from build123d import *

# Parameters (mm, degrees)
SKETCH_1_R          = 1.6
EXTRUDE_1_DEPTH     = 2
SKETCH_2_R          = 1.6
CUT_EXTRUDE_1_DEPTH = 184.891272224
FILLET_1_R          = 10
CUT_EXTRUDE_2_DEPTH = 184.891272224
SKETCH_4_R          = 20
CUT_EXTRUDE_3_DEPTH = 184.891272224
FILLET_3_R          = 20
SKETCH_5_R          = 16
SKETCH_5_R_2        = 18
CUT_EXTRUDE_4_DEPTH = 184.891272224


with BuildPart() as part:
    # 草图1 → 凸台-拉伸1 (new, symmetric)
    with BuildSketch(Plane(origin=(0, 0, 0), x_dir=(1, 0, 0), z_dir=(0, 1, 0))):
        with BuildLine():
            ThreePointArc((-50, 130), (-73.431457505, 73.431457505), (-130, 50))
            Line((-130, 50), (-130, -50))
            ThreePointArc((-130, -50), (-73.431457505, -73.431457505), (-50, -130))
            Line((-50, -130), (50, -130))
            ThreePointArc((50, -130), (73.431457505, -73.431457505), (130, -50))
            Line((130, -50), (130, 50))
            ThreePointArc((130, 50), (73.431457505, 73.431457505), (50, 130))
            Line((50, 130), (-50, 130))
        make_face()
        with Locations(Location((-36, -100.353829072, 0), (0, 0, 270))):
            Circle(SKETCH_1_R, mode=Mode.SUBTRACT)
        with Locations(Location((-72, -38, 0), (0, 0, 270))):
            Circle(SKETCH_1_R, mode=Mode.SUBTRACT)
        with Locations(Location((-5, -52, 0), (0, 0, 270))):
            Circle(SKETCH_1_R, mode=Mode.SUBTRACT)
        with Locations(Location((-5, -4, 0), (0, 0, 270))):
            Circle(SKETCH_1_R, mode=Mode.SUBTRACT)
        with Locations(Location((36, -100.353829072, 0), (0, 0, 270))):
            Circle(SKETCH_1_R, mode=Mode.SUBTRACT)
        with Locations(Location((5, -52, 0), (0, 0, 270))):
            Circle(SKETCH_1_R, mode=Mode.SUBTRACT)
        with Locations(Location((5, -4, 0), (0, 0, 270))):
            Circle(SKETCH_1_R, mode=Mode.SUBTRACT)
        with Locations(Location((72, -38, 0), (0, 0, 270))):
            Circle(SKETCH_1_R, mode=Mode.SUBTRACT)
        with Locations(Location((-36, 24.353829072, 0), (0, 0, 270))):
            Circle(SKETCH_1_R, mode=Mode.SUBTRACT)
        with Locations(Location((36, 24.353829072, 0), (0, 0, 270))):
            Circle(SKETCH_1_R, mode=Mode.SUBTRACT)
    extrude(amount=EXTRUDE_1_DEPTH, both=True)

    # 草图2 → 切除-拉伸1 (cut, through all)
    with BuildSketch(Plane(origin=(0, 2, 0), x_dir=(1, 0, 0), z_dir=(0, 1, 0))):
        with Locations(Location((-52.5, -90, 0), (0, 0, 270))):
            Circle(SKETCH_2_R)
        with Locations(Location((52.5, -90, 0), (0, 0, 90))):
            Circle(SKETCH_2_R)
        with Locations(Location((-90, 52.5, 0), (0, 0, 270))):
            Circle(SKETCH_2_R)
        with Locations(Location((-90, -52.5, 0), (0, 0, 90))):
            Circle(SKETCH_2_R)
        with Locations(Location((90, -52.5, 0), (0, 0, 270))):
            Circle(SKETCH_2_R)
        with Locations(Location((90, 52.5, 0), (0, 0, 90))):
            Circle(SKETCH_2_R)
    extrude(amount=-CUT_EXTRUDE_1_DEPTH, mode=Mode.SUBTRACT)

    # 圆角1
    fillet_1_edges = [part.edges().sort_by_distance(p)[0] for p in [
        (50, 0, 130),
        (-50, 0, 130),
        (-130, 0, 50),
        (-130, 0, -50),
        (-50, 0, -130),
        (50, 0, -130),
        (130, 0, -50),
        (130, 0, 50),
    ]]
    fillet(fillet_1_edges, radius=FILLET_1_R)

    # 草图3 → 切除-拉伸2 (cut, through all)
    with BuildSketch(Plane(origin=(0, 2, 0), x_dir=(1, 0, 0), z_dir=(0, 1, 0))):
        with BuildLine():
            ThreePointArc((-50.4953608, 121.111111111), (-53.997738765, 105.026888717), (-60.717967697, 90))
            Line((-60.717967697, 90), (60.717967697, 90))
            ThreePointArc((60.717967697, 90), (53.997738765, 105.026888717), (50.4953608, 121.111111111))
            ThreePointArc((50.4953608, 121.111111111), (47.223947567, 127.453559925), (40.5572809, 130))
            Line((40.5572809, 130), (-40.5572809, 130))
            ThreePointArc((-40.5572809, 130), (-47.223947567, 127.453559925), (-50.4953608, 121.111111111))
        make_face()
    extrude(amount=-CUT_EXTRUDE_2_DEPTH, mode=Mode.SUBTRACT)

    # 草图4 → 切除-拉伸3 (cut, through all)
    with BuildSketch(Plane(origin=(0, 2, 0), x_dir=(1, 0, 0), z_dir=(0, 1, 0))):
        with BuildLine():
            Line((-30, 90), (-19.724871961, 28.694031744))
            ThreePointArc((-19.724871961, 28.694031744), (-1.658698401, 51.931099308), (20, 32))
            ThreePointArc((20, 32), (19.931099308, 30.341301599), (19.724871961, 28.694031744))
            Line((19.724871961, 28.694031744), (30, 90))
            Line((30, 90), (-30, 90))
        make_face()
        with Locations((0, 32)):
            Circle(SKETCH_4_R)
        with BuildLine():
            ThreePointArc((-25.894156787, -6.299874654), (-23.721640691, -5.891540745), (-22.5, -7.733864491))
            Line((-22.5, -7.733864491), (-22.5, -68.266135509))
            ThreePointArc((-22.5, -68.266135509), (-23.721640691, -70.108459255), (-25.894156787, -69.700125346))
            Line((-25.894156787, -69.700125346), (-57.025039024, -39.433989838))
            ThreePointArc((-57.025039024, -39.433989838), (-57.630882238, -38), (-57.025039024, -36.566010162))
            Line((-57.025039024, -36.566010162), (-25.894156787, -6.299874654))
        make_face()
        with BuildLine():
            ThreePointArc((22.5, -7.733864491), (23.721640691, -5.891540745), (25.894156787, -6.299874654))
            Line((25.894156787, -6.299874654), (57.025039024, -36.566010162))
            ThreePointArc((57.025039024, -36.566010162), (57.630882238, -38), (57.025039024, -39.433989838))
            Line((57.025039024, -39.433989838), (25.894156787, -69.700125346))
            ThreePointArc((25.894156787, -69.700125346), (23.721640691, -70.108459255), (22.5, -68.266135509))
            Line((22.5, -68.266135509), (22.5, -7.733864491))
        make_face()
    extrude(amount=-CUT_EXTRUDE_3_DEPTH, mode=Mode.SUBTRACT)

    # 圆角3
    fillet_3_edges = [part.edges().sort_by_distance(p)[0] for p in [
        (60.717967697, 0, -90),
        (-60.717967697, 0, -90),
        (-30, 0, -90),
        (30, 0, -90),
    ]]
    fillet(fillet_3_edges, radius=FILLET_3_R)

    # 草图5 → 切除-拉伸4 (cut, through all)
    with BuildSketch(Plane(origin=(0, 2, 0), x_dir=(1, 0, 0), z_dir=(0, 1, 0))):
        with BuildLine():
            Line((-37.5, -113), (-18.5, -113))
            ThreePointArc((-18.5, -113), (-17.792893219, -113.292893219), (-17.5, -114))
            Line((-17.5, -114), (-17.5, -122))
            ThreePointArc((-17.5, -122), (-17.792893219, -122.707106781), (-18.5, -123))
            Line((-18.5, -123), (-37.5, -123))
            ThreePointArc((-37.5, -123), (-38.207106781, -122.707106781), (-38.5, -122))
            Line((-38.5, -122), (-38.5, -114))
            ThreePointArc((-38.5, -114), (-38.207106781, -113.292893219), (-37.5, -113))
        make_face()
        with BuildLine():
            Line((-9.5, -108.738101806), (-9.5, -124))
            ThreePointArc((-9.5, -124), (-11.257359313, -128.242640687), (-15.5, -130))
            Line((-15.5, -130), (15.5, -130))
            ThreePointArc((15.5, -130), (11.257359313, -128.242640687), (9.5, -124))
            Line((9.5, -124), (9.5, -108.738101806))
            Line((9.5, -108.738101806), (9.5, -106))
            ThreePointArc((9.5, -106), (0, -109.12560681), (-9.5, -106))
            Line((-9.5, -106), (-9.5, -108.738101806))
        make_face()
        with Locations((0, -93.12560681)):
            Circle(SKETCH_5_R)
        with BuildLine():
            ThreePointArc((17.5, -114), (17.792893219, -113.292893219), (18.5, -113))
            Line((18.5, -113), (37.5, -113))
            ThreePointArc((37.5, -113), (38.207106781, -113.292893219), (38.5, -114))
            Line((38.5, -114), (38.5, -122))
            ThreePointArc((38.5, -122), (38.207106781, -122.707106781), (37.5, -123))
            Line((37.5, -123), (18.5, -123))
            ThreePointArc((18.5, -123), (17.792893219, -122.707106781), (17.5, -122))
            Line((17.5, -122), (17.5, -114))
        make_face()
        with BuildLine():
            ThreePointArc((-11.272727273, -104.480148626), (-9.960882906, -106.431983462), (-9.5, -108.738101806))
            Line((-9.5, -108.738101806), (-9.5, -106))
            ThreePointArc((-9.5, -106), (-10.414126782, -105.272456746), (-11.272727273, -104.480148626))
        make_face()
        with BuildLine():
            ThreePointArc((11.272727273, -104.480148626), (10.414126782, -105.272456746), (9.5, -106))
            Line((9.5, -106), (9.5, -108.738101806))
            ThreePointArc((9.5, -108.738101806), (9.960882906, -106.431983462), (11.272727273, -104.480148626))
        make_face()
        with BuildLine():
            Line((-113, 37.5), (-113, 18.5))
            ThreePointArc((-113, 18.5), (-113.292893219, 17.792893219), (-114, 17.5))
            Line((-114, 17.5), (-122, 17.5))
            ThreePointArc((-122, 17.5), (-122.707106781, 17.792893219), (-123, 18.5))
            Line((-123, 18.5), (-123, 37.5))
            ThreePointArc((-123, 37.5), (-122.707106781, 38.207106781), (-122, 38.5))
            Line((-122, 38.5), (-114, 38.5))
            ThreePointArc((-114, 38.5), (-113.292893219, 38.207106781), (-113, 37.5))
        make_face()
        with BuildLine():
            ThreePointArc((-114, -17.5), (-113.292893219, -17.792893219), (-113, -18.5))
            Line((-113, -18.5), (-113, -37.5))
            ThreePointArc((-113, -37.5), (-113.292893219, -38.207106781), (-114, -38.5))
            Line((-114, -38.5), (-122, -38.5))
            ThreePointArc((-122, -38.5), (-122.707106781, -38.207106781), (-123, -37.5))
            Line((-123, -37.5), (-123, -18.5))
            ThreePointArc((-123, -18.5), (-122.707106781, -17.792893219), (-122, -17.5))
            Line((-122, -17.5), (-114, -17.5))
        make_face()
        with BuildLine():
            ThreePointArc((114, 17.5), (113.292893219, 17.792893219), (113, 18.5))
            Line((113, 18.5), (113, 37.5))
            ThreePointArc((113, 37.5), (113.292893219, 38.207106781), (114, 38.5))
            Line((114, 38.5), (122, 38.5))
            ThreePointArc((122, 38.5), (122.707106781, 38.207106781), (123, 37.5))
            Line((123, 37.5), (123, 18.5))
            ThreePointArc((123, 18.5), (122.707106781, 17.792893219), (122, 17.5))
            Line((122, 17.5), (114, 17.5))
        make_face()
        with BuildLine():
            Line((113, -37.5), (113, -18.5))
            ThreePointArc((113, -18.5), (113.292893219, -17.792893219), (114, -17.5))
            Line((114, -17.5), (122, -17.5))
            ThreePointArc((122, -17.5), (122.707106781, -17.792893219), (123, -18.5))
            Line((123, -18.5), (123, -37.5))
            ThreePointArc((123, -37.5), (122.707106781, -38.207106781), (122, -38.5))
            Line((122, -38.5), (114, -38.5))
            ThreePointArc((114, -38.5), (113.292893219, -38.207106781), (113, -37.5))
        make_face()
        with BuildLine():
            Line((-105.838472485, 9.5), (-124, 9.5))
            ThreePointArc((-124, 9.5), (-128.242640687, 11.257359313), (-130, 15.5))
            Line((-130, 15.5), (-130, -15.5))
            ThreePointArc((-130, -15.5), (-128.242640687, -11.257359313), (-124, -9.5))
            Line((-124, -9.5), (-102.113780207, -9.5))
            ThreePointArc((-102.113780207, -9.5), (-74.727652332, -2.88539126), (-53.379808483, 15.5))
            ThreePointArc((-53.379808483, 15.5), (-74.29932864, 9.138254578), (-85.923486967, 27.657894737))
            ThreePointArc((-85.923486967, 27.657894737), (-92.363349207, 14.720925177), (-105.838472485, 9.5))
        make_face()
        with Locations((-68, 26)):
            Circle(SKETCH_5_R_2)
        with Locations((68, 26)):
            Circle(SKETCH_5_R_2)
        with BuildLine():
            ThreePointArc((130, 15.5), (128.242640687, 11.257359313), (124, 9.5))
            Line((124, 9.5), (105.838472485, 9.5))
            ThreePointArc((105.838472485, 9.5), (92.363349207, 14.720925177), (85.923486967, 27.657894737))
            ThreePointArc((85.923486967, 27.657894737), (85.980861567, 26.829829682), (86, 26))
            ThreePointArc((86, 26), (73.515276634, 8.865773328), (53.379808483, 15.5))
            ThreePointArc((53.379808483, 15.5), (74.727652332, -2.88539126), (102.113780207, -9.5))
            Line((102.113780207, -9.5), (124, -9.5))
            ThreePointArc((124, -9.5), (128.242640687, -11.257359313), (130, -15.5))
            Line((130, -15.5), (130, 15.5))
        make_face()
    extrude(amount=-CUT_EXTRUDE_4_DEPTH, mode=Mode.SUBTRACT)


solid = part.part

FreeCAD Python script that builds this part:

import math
import FreeCAD as App
import Part
import Sketcher
from FreeCAD import Vector


def edges_at(feature, points):
    """Names of the edges that pass closest to the given points."""
    edges = feature.Shape.Edges
    near = lambda p: min(range(len(edges)), key=lambda i: edges[i].distToShape(Part.Vertex(*p))[0])
    return sorted({f"Edge{near(p) + 1}" for p in points})

doc = App.newDocument("Part")
body = doc.addObject("PartDesign::Body", "Body")

sketch1 = body.newObject("Sketcher::SketchObject", "Sketch")
sketch1.AttachmentSupport = (doc.getObject("XZ_Plane"), [""])
sketch1.MapMode = "FlatFace"
sketch1.addGeometry([
    Part.ArcOfCircle(Part.Circle(Vector(-130, -130, 0), Vector(0, 0, 1), 80), math.radians(0), math.radians(90)),
    Part.LineSegment(Vector(-130, -50, 0), Vector(-130, 50, 0)),
    Part.ArcOfCircle(Part.Circle(Vector(-130, 130, 0), Vector(0, 0, 1), 80), math.radians(-90), math.radians(0)),
    Part.LineSegment(Vector(-50, 130, 0), Vector(50, 130, 0)),
    Part.ArcOfCircle(Part.Circle(Vector(130, 130, 0), Vector(0, 0, 1), 80), math.radians(180), math.radians(270)),
    Part.LineSegment(Vector(130, 50, 0), Vector(130, -50, 0)),
    Part.ArcOfCircle(Part.Circle(Vector(130, -130, 0), Vector(0, 0, 1), 80), math.radians(90), math.radians(180)),
    Part.LineSegment(Vector(50, -130, 0), Vector(-50, -130, 0)),
    Part.Circle(Vector(-36, 100.4, 0), Vector(0, 0, 1), 1.6),
    Part.Circle(Vector(-72, 38, 0), Vector(0, 0, 1), 1.6),
    Part.Circle(Vector(-5, 52, 0), Vector(0, 0, 1), 1.6),
    Part.Circle(Vector(36, 100.4, 0), Vector(0, 0, 1), 1.6),
    Part.Circle(Vector(5, 52, 0), Vector(0, 0, 1), 1.6),
    Part.Circle(Vector(72, 38, 0), Vector(0, 0, 1), 1.6),
    Part.Circle(Vector(-5, 4, 0), Vector(0, 0, 1), 1.6),
    Part.Circle(Vector(-36, -24.4, 0), Vector(0, 0, 1), 1.6),
    Part.Circle(Vector(5, 4, 0), Vector(0, 0, 1), 1.6),
    Part.Circle(Vector(36, -24.4, 0), Vector(0, 0, 1), 1.6),
], False)
sketch1.addConstraint([
    Sketcher.Constraint("Coincident", 0, 2, 1, 1),
    Sketcher.Constraint("Coincident", 1, 2, 2, 1),
    Sketcher.Constraint("Coincident", 2, 2, 3, 1),
    Sketcher.Constraint("Coincident", 3, 2, 4, 1),
    Sketcher.Constraint("Coincident", 4, 2, 5, 1),
    Sketcher.Constraint("Coincident", 5, 2, 6, 1),
    Sketcher.Constraint("Coincident", 6, 2, 7, 1),
    Sketcher.Constraint("Coincident", 7, 2, 0, 1),
    Sketcher.Constraint("Vertical", 1),
    Sketcher.Constraint("Horizontal", 3),
    Sketcher.Constraint("Vertical", 5),
    Sketcher.Constraint("Horizontal", 7),
    Sketcher.Constraint("Equal", 0, 2),
    Sketcher.Constraint("Equal", 2, 4),
    Sketcher.Constraint("Equal", 4, 6),
    Sketcher.Constraint("Equal", 8, 9),
    Sketcher.Constraint("Equal", 9, 10),
    Sketcher.Constraint("Equal", 10, 11),
    Sketcher.Constraint("Equal", 11, 12),
    Sketcher.Constraint("Equal", 12, 13),
    Sketcher.Constraint("Equal", 13, 14),
    Sketcher.Constraint("Equal", 14, 15),
    Sketcher.Constraint("Equal", 15, 16),
    Sketcher.Constraint("Equal", 16, 17),
    Sketcher.Constraint("Symmetric", 0, 3, 4, 3, -1, 1),
    Sketcher.Constraint("Symmetric", 2, 3, 6, 3, -1, 1),
    Sketcher.Constraint("Symmetric", 2, 3, 4, 3, -2),
    Sketcher.Constraint("Symmetric", 8, 3, 11, 3, -2),
    Sketcher.Constraint("Symmetric", 10, 3, 12, 3, -2),
    Sketcher.Constraint("Symmetric", 9, 3, 13, 3, -2),
    Sketcher.Constraint("Symmetric", 14, 3, 16, 3, -2),
    Sketcher.Constraint("Symmetric", 15, 3, 17, 3, -2),
    Sketcher.Constraint("Horizontal", 4, 3, 2, 2),
    Sketcher.Constraint("Horizontal", 0, 3, 6, 2),
    Sketcher.Constraint("Vertical", 10, 3, 14, 3),
    Sketcher.Constraint("Vertical", 8, 3, 15, 3),
    Sketcher.Constraint("Vertical", 2, 3, 0, 2),
    Sketcher.Constraint("Vertical", 6, 3, 4, 2),
    Sketcher.Constraint("Equal", 7, 1),
    Sketcher.Constraint("Radius", 0, 80.0),
    Sketcher.Constraint("Diameter", 8, 3.2),
    Sketcher.Constraint("DistanceX", 3, 1, 3, 2, 100.0),
    Sketcher.Constraint("DistanceX", 8, 3, -1, 1, 36.0),
    Sketcher.Constraint("DistanceX", 9, 3, -1, 1, 72.0),
    Sketcher.Constraint("DistanceY", -1, 1, 9, 3, 38.0),
    Sketcher.Constraint("DistanceX", 10, 3, -1, 1, 5.0),
    Sketcher.Constraint("DistanceY", -1, 1, 10, 3, 52.0),
    Sketcher.Constraint("DistanceY", -1, 1, 14, 3, 4.0),
    Sketcher.Constraint("DistanceY", -1, 1, 8, 3, 100.353829),
    Sketcher.Constraint("DistanceY", 15, 3, -1, 1, 24.353829),
])
pad1 = body.newObject("PartDesign::Pad", "Pad")
pad1.Profile = sketch1
pad1.Length = 4
pad1.Midplane = True

sketch2 = body.newObject("Sketcher::SketchObject", "Sketch001")
sketch2.AttachmentSupport = (doc.getObject("XZ_Plane"), [""])
sketch2.MapMode = "FlatFace"
sketch2.AttachmentOffset = App.Placement(Vector(0, 0, -2), App.Rotation())
sketch2.addGeometry([
    Part.Circle(Vector(-52.5, 90, 0), Vector(0, 0, 1), 1.6),
    Part.Circle(Vector(52.5, 90, 0), Vector(0, 0, 1), 1.6),
    Part.Circle(Vector(-90, -52.5, 0), Vector(0, 0, 1), 1.6),
    Part.Circle(Vector(-90, 52.5, 0), Vector(0, 0, 1), 1.6),
    Part.Circle(Vector(90, 52.5, 0), Vector(0, 0, 1), 1.6),
    Part.Circle(Vector(90, -52.5, 0), Vector(0, 0, 1), 1.6),
], False)
sketch2.addConstraint([
    Sketcher.Constraint("Equal", 0, 1),
    Sketcher.Constraint("Equal", 1, 2),
    Sketcher.Constraint("Equal", 2, 3),
    Sketcher.Constraint("Equal", 3, 4),
    Sketcher.Constraint("Equal", 4, 5),
    Sketcher.Constraint("Symmetric", 2, 3, 4, 3, -1, 1),
    Sketcher.Constraint("Symmetric", 3, 3, 5, 3, -1, 1),
    Sketcher.Constraint("Symmetric", 0, 3, 1, 3, -2),
    Sketcher.Constraint("Symmetric", 3, 3, 4, 3, -2),
    Sketcher.Constraint("Diameter", 0, 3.2),
    Sketcher.Constraint("DistanceY", -1, 1, 0, 3, 90.0),
    Sketcher.Constraint("DistanceX", 2, 3, -1, 1, 90.0),
    Sketcher.Constraint("DistanceX", 0, 3, 1, 3, 105.0),
    Sketcher.Constraint("DistanceY", 2, 3, 3, 3, 105.0),
])
pocket1 = body.newObject("PartDesign::Pocket", "Pocket")
pocket1.Profile = sketch2
pocket1.Type = "ThroughAll"
pocket1.Reversed = True
doc.recompute()

fillet = body.newObject("PartDesign::Fillet", "Fillet")
fillet.Base = (pocket1, edges_at(pocket1, [
    (50, 0, 130),
    (-50, 0, 130),
    (-130, 0, 50),
    (-130, 0, -50),
    (-50, 0, -130),
    (50, 0, -130),
    (130, 0, -50),
    (130, 0, 50),
]))
fillet.Radius = 10

sketch3 = body.newObject("Sketcher::SketchObject", "Sketch002")
sketch3.AttachmentSupport = (doc.getObject("XZ_Plane"), [""])
sketch3.MapMode = "FlatFace"
sketch3.AttachmentOffset = App.Placement(Vector(0, 0, -2), App.Rotation())
sketch3.addGeometry([
    Part.ArcOfCircle(Part.Circle(Vector(-130, -130, 0), Vector(0, 0, 1), 80), math.radians(6), math.radians(30)),
    Part.LineSegment(Vector(-61, -90, 0), Vector(61, -90, 0)),
    Part.ArcOfCircle(Part.Circle(Vector(130, -130, 0), Vector(0, 0, 1), 80), math.radians(150), math.radians(174)),
    Part.ArcOfCircle(Part.Circle(Vector(41, -120, 0), Vector(0, 0, 1), 10), math.radians(-90), math.radians(-6)),
    Part.LineSegment(Vector(41, -130, 0), Vector(-41, -130, 0)),
    Part.ArcOfCircle(Part.Circle(Vector(-41, -120, 0), Vector(0, 0, 1), 10), math.radians(-174), math.radians(-90)),
], False)
sketch3.addConstraint([
    Sketcher.Constraint("Coincident", 0, 2, 1, 1),
    Sketcher.Constraint("Coincident", 1, 2, 2, 1),
    Sketcher.Constraint("Tangent", 2, 2, 3, 2),
    Sketcher.Constraint("Tangent", 3, 1, 4, 1),
    Sketcher.Constraint("Tangent", 4, 2, 5, 2),
    Sketcher.Constraint("Tangent", 5, 1, 0, 1),
    Sketcher.Constraint("Horizontal", 1),
    Sketcher.Constraint("Horizontal", 4),
    Sketcher.Constraint("Equal", 0, 2),
    Sketcher.Constraint("Equal", 3, 5),
    Sketcher.Constraint("Symmetric", 0, 3, 2, 3, -2),
    Sketcher.Constraint("Horizontal", 2, 3, 3, 1),
    Sketcher.Constraint("Radius", 0, 80.0),
    Sketcher.Constraint("Radius", 3, 10.0),
    Sketcher.Constraint("DistanceX", 0, 3, -1, 1, 130.0),
    Sketcher.Constraint("DistanceY", 0, 3, -1, 1, 130.0),
    Sketcher.Constraint("DistanceY", 0, 2, -1, 1, 90.0),
])
pocket2 = body.newObject("PartDesign::Pocket", "Pocket001")
pocket2.Profile = sketch3
pocket2.Type = "ThroughAll"
pocket2.Reversed = True

sketch4 = body.newObject("Sketcher::SketchObject", "Sketch003")
sketch4.AttachmentSupport = (doc.getObject("XZ_Plane"), [""])
sketch4.MapMode = "FlatFace"
sketch4.AttachmentOffset = App.Placement(Vector(0, 0, -2), App.Rotation())
sketch4.addGeometry([
    Part.LineSegment(Vector(-30, -90, 0), Vector(-19.7, -28.7, 0)),
    Part.ArcOfCircle(Part.Circle(Vector(0, -32, 0), Vector(0, 0, 1), 20), math.radians(10), math.radians(170)),
    Part.LineSegment(Vector(19.7, -28.7, 0), Vector(30, -90, 0)),
    Part.LineSegment(Vector(30, -90, 0), Vector(-30, -90, 0)),
    Part.ArcOfCircle(Part.Circle(Vector(-24.5, 7.7, 0), Vector(0, 0, 1), 2), math.radians(-134), math.radians(0)),
    Part.LineSegment(Vector(-25.9, 6.3, 0), Vector(-57, 36.6, 0)),
    Part.ArcOfCircle(Part.Circle(Vector(-55.6, 38, 0), Vector(0, 0, 1), 2), math.radians(134), math.radians(226)),
    Part.LineSegment(Vector(-57, 39.4, 0), Vector(-25.9, 69.7, 0)),
    Part.ArcOfCircle(Part.Circle(Vector(-24.5, 68.3, 0), Vector(0, 0, 1), 2), math.radians(0), math.radians(134)),
    Part.LineSegment(Vector(-22.5, 68.3, 0), Vector(-22.5, 7.7, 0)),
    Part.ArcOfCircle(Part.Circle(Vector(24.5, 7.7, 0), Vector(0, 0, 1), 2), math.radians(180), math.radians(314)),
    Part.LineSegment(Vector(22.5, 7.7, 0), Vector(22.5, 68.3, 0)),
    Part.ArcOfCircle(Part.Circle(Vector(24.5, 68.3, 0), Vector(0, 0, 1), 2), math.radians(46), math.radians(180)),
    Part.LineSegment(Vector(25.9, 69.7, 0), Vector(57, 39.4, 0)),
    Part.ArcOfCircle(Part.Circle(Vector(55.6, 38, 0), Vector(0, 0, 1), 2), math.radians(-46), math.radians(46)),
    Part.LineSegment(Vector(57, 36.6, 0), Vector(25.9, 6.3, 0)),
], False)
sketch4.addConstraint([
    Sketcher.Constraint("Tangent", 0, 2, 1, 2),
    Sketcher.Constraint("Tangent", 1, 1, 2, 1),
    Sketcher.Constraint("Coincident", 2, 2, 3, 1),
    Sketcher.Constraint("Coincident", 3, 2, 0, 1),
    Sketcher.Constraint("Tangent", 4, 1, 5, 1),
    Sketcher.Constraint("Tangent", 5, 2, 6, 2),
    Sketcher.Constraint("Tangent", 6, 1, 7, 1),
    Sketcher.Constraint("Tangent", 7, 2, 8, 2),
    Sketcher.Constraint("Tangent", 8, 1, 9, 1),
    Sketcher.Constraint("Tangent", 9, 2, 4, 2),
    Sketcher.Constraint("Tangent", 10, 1, 11, 1),
    Sketcher.Constraint("Tangent", 11, 2, 12, 2),
    Sketcher.Constraint("Tangent", 12, 1, 13, 1),
    Sketcher.Constraint("Tangent", 13, 2, 14, 2),
    Sketcher.Constraint("Tangent", 14, 1, 15, 1),
    Sketcher.Constraint("Tangent", 15, 2, 10, 2),
    Sketcher.Constraint("Horizontal", 3),
    Sketcher.Constraint("Vertical", 9),
    Sketcher.Constraint("Vertical", 11),
    Sketcher.Constraint("Equal", 4, 6),
    Sketcher.Constraint("Equal", 6, 8),
    Sketcher.Constraint("Equal", 8, 10),
    Sketcher.Constraint("Equal", 10, 12),
    Sketcher.Constraint("Equal", 12, 14),
    Sketcher.Constraint("Symmetric", 4, 3, 10, 3, -2),
    Sketcher.Constraint("Symmetric", 6, 3, 14, 3, -2),
    Sketcher.Constraint("Symmetric", 0, 2, 1, 1, -2),
    Sketcher.Constraint("Parallel", 5, 13),
    Sketcher.Constraint("Parallel", 7, 15),
    Sketcher.Constraint("Radius", 1, 20.0),
    Sketcher.Constraint("Radius", 4, 2.0),
    Sketcher.Constraint("DistanceX", 3, 2, 3, 1, 60.0),
    Sketcher.Constraint("DistanceY", 1, 3, -1, 1, 32.0),
    Sketcher.Constraint("DistanceY", -1, 1, 6, 3, 38.0),
    Sketcher.Constraint("DistanceY", 2, 2, -1, 1, 90.0),
    Sketcher.Constraint("DistanceX", 4, 3, 10, 3, 49.0),
    Sketcher.Constraint("DistanceY", 9, 2, 9, 1, 60.532271),
    Sketcher.Constraint("DistanceX", 5, 2, -1, 1, 57.025039),
])
pocket3 = body.newObject("PartDesign::Pocket", "Pocket002")
pocket3.Profile = sketch4
pocket3.Type = "ThroughAll"
pocket3.Reversed = True
doc.recompute()

fillet2 = body.newObject("PartDesign::Fillet", "Fillet001")
fillet2.Base = (pocket3, edges_at(pocket3, [
    (60.718, 0, -90),
    (-60.718, 0, -90),
    (-30, 0, -90),
    (30, 0, -90),
]))
fillet2.Radius = 20

sketch5 = body.newObject("Sketcher::SketchObject", "Sketch004")
sketch5.AttachmentSupport = (doc.getObject("XZ_Plane"), [""])
sketch5.MapMode = "FlatFace"
sketch5.AttachmentOffset = App.Placement(Vector(0, 0, -2), App.Rotation())
sketch5.addGeometry([
    Part.LineSegment(Vector(-18.5, 113, 0), Vector(-37.5, 113, 0)),
    Part.ArcOfCircle(Part.Circle(Vector(-37.5, 114, 0), Vector(0, 0, 1), 1), math.radians(-180), math.radians(-90)),
    Part.LineSegment(Vector(-38.5, 114, 0), Vector(-38.5, 122, 0)),
    Part.ArcOfCircle(Part.Circle(Vector(-37.5, 122, 0), Vector(0, 0, 1), 1), math.radians(90), math.radians(180)),
    Part.LineSegment(Vector(-37.5, 123, 0), Vector(-18.5, 123, 0)),
    Part.ArcOfCircle(Part.Circle(Vector(-18.5, 122, 0), Vector(0, 0, 1), 1), math.radians(0), math.radians(90)),
    Part.LineSegment(Vector(-17.5, 122, 0), Vector(-17.5, 114, 0)),
    Part.ArcOfCircle(Part.Circle(Vector(-18.5, 114, 0), Vector(0, 0, 1), 1), math.radians(-90), math.radians(0)),
    Part.ArcOfCircle(Part.Circle(Vector(-15.5, 124, 0), Vector(0, 0, 1), 6), math.radians(0), math.radians(90)),
    Part.LineSegment(Vector(-15.5, 130, 0), Vector(15.5, 130, 0)),
    Part.ArcOfCircle(Part.Circle(Vector(15.5, 124, 0), Vector(0, 0, 1), 6), math.radians(90), math.radians(180)),
    Part.LineSegment(Vector(9.5, 124, 0), Vector(9.5, 108.7, 0)),
    Part.ArcOfCircle(Part.Circle(Vector(15.5, 108.7, 0), Vector(0, 0, 1), 6), math.radians(180), math.radians(225)),
    Part.ArcOfCircle(Part.Circle(Vector(0, 93.1, 0), Vector(0, 0, 1), 16), math.radians(135), math.radians(405)),
    Part.ArcOfCircle(Part.Circle(Vector(-15.5, 108.7, 0), Vector(0, 0, 1), 6), math.radians(-45), math.radians(0)),
    Part.LineSegment(Vector(-9.5, 108.7, 0), Vector(-9.5, 124, 0)),
    Part.ArcOfCircle(Part.Circle(Vector(18.5, 114, 0), Vector(0, 0, 1), 1), math.radians(-180), math.radians(-90)),
    Part.LineSegment(Vector(17.5, 114, 0), Vector(17.5, 122, 0)),
    Part.ArcOfCircle(Part.Circle(Vector(18.5, 122, 0), Vector(0, 0, 1), 1), math.radians(90), math.radians(180)),
    Part.LineSegment(Vector(18.5, 123, 0), Vector(37.5, 123, 0)),
    Part.ArcOfCircle(Part.Circle(Vector(37.5, 122, 0), Vector(0, 0, 1), 1), math.radians(0), math.radians(90)),
    Part.LineSegment(Vector(38.5, 122, 0), Vector(38.5, 114, 0)),
    Part.ArcOfCircle(Part.Circle(Vector(37.5, 114, 0), Vector(0, 0, 1), 1), math.radians(-90), math.radians(0)),
    Part.LineSegment(Vector(37.5, 113, 0), Vector(18.5, 113, 0)),
    Part.LineSegment(Vector(-113, -18.5, 0), Vector(-113, -37.5, 0)),
    Part.ArcOfCircle(Part.Circle(Vector(-114, -37.5, 0), Vector(0, 0, 1), 1), math.radians(-90), math.radians(0)),
    Part.LineSegment(Vector(-114, -38.5, 0), Vector(-122, -38.5, 0)),
    Part.ArcOfCircle(Part.Circle(Vector(-122, -37.5, 0), Vector(0, 0, 1), 1), math.radians(-180), math.radians(-90)),
    Part.LineSegment(Vector(-123, -37.5, 0), Vector(-123, -18.5, 0)),
    Part.ArcOfCircle(Part.Circle(Vector(-122, -18.5, 0), Vector(0, 0, 1), 1), math.radians(90), math.radians(180)),
    Part.LineSegment(Vector(-122, -17.5, 0), Vector(-114, -17.5, 0)),
    Part.ArcOfCircle(Part.Circle(Vector(-114, -18.5, 0), Vector(0, 0, 1), 1), math.radians(0), math.radians(90)),
    Part.ArcOfCircle(Part.Circle(Vector(-114, 18.5, 0), Vector(0, 0, 1), 1), math.radians(-90), math.radians(0)),
    Part.LineSegment(Vector(-114, 17.5, 0), Vector(-122, 17.5, 0)),
    Part.ArcOfCircle(Part.Circle(Vector(-122, 18.5, 0), Vector(0, 0, 1), 1), math.radians(-180), math.radians(-90)),
    Part.LineSegment(Vector(-123, 18.5, 0), Vector(-123, 37.5, 0)),
    Part.ArcOfCircle(Part.Circle(Vector(-122, 37.5, 0), Vector(0, 0, 1), 1), math.radians(90), math.radians(180)),
    Part.LineSegment(Vector(-122, 38.5, 0), Vector(-114, 38.5, 0)),
    Part.ArcOfCircle(Part.Circle(Vector(-114, 37.5, 0), Vector(0, 0, 1), 1), math.radians(0), math.radians(90)),
    Part.LineSegment(Vector(-113, 37.5, 0), Vector(-113, 18.5, 0)),
    Part.ArcOfCircle(Part.Circle(Vector(114, -18.5, 0), Vector(0, 0, 1), 1), math.radians(90), math.radians(180)),
    Part.LineSegment(Vector(114, -17.5, 0), Vector(122, -17.5, 0)),
    Part.ArcOfCircle(Part.Circle(Vector(122, -18.5, 0), Vector(0, 0, 1), 1), math.radians(0), math.radians(90)),
    Part.LineSegment(Vector(123, -18.5, 0), Vector(123, -37.5, 0)),
    Part.ArcOfCircle(Part.Circle(Vector(122, -37.5, 0), Vector(0, 0, 1), 1), math.radians(-90), math.radians(0)),
    Part.LineSegment(Vector(122, -38.5, 0), Vector(114, -38.5, 0)),
    Part.ArcOfCircle(Part.Circle(Vector(114, -37.5, 0), Vector(0, 0, 1), 1), math.radians(-180), math.radians(-90)),
    Part.LineSegment(Vector(113, -37.5, 0), Vector(113, -18.5, 0)),
    Part.LineSegment(Vector(113, 18.5, 0), Vector(113, 37.5, 0)),
    Part.ArcOfCircle(Part.Circle(Vector(114, 37.5, 0), Vector(0, 0, 1), 1), math.radians(90), math.radians(180)),
    Part.LineSegment(Vector(114, 38.5, 0), Vector(122, 38.5, 0)),
    Part.ArcOfCircle(Part.Circle(Vector(122, 37.5, 0), Vector(0, 0, 1), 1), math.radians(0), math.radians(90)),
    Part.LineSegment(Vector(123, 37.5, 0), Vector(123, 18.5, 0)),
    Part.ArcOfCircle(Part.Circle(Vector(122, 18.5, 0), Vector(0, 0, 1), 1), math.radians(-90), math.radians(0)),
    Part.LineSegment(Vector(122, 17.5, 0), Vector(114, 17.5, 0)),
    Part.ArcOfCircle(Part.Circle(Vector(114, 18.5, 0), Vector(0, 0, 1), 1), math.radians(-180), math.radians(-90)),
    Part.LineSegment(Vector(-105.8, -9.5, 0), Vector(-124, -9.5, 0)),
    Part.ArcOfCircle(Part.Circle(Vector(-124, -15.5, 0), Vector(0, 0, 1), 6), math.radians(90), math.radians(180)),
    Part.LineSegment(Vector(-130, -15.5, 0), Vector(-130, 15.5, 0)),
    Part.ArcOfCircle(Part.Circle(Vector(-124, 15.5, 0), Vector(0, 0, 1), 6), math.radians(180), math.radians(270)),
    Part.LineSegment(Vector(-124, 9.5, 0), Vector(-102.1, 9.5, 0)),
    Part.ArcOfCircle(Part.Circle(Vector(-102.1, -50.5, 0), Vector(0, 0, 1), 60), math.radians(36), math.radians(90)),
    Part.ArcOfCircle(Part.Circle(Vector(-68, -26, 0), Vector(0, 0, 1), 18), math.radians(-175), math.radians(36)),
    Part.ArcOfCircle(Part.Circle(Vector(-105.8, -29.5, 0), Vector(0, 0, 1), 20), math.radians(5), math.radians(90)),
    Part.ArcOfCircle(Part.Circle(Vector(68, -26, 0), Vector(0, 0, 1), 18), math.radians(144), math.radians(355)),
    Part.ArcOfCircle(Part.Circle(Vector(102.1, -50.5, 0), Vector(0, 0, 1), 60), math.radians(90), math.radians(144)),
    Part.LineSegment(Vector(102.1, 9.5, 0), Vector(124, 9.5, 0)),
    Part.ArcOfCircle(Part.Circle(Vector(124, 15.5, 0), Vector(0, 0, 1), 6), math.radians(-90), math.radians(0)),
    Part.LineSegment(Vector(130, 15.5, 0), Vector(130, -15.5, 0)),
    Part.ArcOfCircle(Part.Circle(Vector(124, -15.5, 0), Vector(0, 0, 1), 6), math.radians(0), math.radians(90)),
    Part.LineSegment(Vector(124, -9.5, 0), Vector(105.8, -9.5, 0)),
    Part.ArcOfCircle(Part.Circle(Vector(105.8, -29.5, 0), Vector(0, 0, 1), 20), math.radians(90), math.radians(175)),
], False)
sketch5.addConstraint([
    Sketcher.Constraint("Tangent", 0, 2, 1, 2),
    Sketcher.Constraint("Tangent", 1, 1, 2, 1),
    Sketcher.Constraint("Tangent", 2, 2, 3, 2),
    Sketcher.Constraint("Tangent", 3, 1, 4, 1),
    Sketcher.Constraint("Tangent", 4, 2, 5, 2),
    Sketcher.Constraint("Tangent", 5, 1, 6, 1),
    Sketcher.Constraint("Tangent", 6, 2, 7, 2),
    Sketcher.Constraint("Tangent", 7, 1, 0, 1),
    Sketcher.Constraint("Tangent", 8, 2, 9, 1),
    Sketcher.Constraint("Tangent", 9, 2, 10, 1),
    Sketcher.Constraint("Tangent", 10, 2, 11, 1),
    Sketcher.Constraint("Tangent", 11, 2, 12, 1),
    Sketcher.Constraint("Tangent", 12, 2, 13, 2),
    Sketcher.Constraint("Tangent", 13, 1, 14, 1),
    Sketcher.Constraint("Tangent", 14, 2, 15, 1),
    Sketcher.Constraint("Tangent", 15, 2, 8, 1),
    Sketcher.Constraint("Tangent", 16, 1, 17, 1),
    Sketcher.Constraint("Tangent", 17, 2, 18, 2),
    Sketcher.Constraint("Tangent", 18, 1, 19, 1),
    Sketcher.Constraint("Tangent", 19, 2, 20, 2),
    Sketcher.Constraint("Tangent", 20, 1, 21, 1),
    Sketcher.Constraint("Tangent", 21, 2, 22, 2),
    Sketcher.Constraint("Tangent", 22, 1, 23, 1),
    Sketcher.Constraint("Tangent", 23, 2, 16, 2),
    Sketcher.Constraint("Tangent", 24, 2, 25, 2),
    Sketcher.Constraint("Tangent", 25, 1, 26, 1),
    Sketcher.Constraint("Tangent", 26, 2, 27, 2),
    Sketcher.Constraint("Tangent", 27, 1, 28, 1),
    Sketcher.Constraint("Tangent", 28, 2, 29, 2),
    Sketcher.Constraint("Tangent", 29, 1, 30, 1),
    Sketcher.Constraint("Tangent", 30, 2, 31, 2),
    Sketcher.Constraint("Tangent", 31, 1, 24, 1),
    Sketcher.Constraint("Tangent", 32, 1, 33, 1),
    Sketcher.Constraint("Tangent", 33, 2, 34, 2),
    Sketcher.Constraint("Tangent", 34, 1, 35, 1),
    Sketcher.Constraint("Tangent", 35, 2, 36, 2),
    Sketcher.Constraint("Tangent", 36, 1, 37, 1),
    Sketcher.Constraint("Tangent", 37, 2, 38, 2),
    Sketcher.Constraint("Tangent", 38, 1, 39, 1),
    Sketcher.Constraint("Tangent", 39, 2, 32, 2),
    Sketcher.Constraint("Tangent", 40, 1, 41, 1),
    Sketcher.Constraint("Tangent", 41, 2, 42, 2),
    Sketcher.Constraint("Tangent", 42, 1, 43, 1),
    Sketcher.Constraint("Tangent", 43, 2, 44, 2),
    Sketcher.Constraint("Tangent", 44, 1, 45, 1),
    Sketcher.Constraint("Tangent", 45, 2, 46, 2),
    Sketcher.Constraint("Tangent", 46, 1, 47, 1),
    Sketcher.Constraint("Tangent", 47, 2, 40, 2),
    Sketcher.Constraint("Tangent", 48, 2, 49, 2),
    Sketcher.Constraint("Tangent", 49, 1, 50, 1),
    Sketcher.Constraint("Tangent", 50, 2, 51, 2),
    Sketcher.Constraint("Tangent", 51, 1, 52, 1),
    Sketcher.Constraint("Tangent", 52, 2, 53, 2),
    Sketcher.Constraint("Tangent", 53, 1, 54, 1),
    Sketcher.Constraint("Tangent", 54, 2, 55, 2),
    Sketcher.Constraint("Tangent", 55, 1, 48, 1),
    Sketcher.Constraint("Tangent", 56, 2, 57, 1),
    Sketcher.Constraint("Tangent", 57, 2, 58, 1),
    Sketcher.Constraint("Tangent", 58, 2, 59, 1),
    Sketcher.Constraint("Tangent", 59, 2, 60, 1),
    Sketcher.Constraint("Tangent", 60, 2, 61, 2),
    Sketcher.Constraint("Tangent", 61, 1, 62, 2),
    Sketcher.Constraint("Tangent", 62, 1, 63, 1),
    Sketcher.Constraint("Tangent", 63, 2, 56, 1),
    Sketcher.Constraint("Tangent", 64, 1, 65, 2),
    Sketcher.Constraint("Tangent", 65, 1, 66, 1),
    Sketcher.Constraint("Tangent", 66, 2, 67, 1),
    Sketcher.Constraint("Tangent", 67, 2, 68, 1),
    Sketcher.Constraint("Tangent", 68, 2, 69, 1),
    Sketcher.Constraint("Tangent", 69, 2, 70, 1),
    Sketcher.Constraint("Tangent", 70, 2, 71, 1),
    Sketcher.Constraint("Tangent", 71, 2, 64, 2),
    Sketcher.Constraint("Horizontal", 0),
    Sketcher.Constraint("Vertical", 2),
    Sketcher.Constraint("Horizontal", 4),
    Sketcher.Constraint("Vertical", 6),
    Sketcher.Constraint("Horizontal", 9),
    Sketcher.Constraint("Vertical", 11),
    Sketcher.Constraint("Vertical", 15),
    Sketcher.Constraint("Vertical", 17),
    Sketcher.Constraint("Horizontal", 19),
    Sketcher.Constraint("Vertical", 21),
    Sketcher.Constraint("Horizontal", 23),
    Sketcher.Constraint("Vertical", 24),
    Sketcher.Constraint("Horizontal", 26),
    Sketcher.Constraint("Vertical", 28),
    Sketcher.Constraint("Horizontal", 30),
    Sketcher.Constraint("Horizontal", 33),
    Sketcher.Constraint("Vertical", 35),
    Sketcher.Constraint("Horizontal", 37),
    Sketcher.Constraint("Vertical", 39),
    Sketcher.Constraint("Horizontal", 41),
    Sketcher.Constraint("Vertical", 43),
    Sketcher.Constraint("Horizontal", 45),
    Sketcher.Constraint("Vertical", 47),
    Sketcher.Constraint("Vertical", 48),
    Sketcher.Constraint("Horizontal", 50),
    Sketcher.Constraint("Vertical", 52),
    Sketcher.Constraint("Horizontal", 54),
    Sketcher.Constraint("Horizontal", 56),
    Sketcher.Constraint("Vertical", 58),
    Sketcher.Constraint("Horizontal", 60),
    Sketcher.Constraint("Horizontal", 66),
    Sketcher.Constraint("Vertical", 68),
    Sketcher.Constraint("Horizontal", 70),
    Sketcher.Constraint("Equal", 1, 3),
    Sketcher.Constraint("Equal", 3, 5),
    Sketcher.Constraint("Equal", 5, 7),
    Sketcher.Constraint("Equal", 8, 10),
    Sketcher.Constraint("Equal", 10, 12),
    Sketcher.Constraint("Equal", 12, 14),
    Sketcher.Constraint("Equal", 7, 16),
    Sketcher.Constraint("Equal", 16, 18),
    Sketcher.Constraint("Equal", 18, 20),
    Sketcher.Constraint("Equal", 20, 22),
    Sketcher.Constraint("Equal", 22, 25),
    Sketcher.Constraint("Equal", 25, 27),
    Sketcher.Constraint("Equal", 27, 29),
    Sketcher.Constraint("Equal", 29, 31),
    Sketcher.Constraint("Equal", 31, 32),
    Sketcher.Constraint("Equal", 32, 34),
    Sketcher.Constraint("Equal", 34, 36),
    Sketcher.Constraint("Equal", 36, 38),
    Sketcher.Constraint("Equal", 38, 40),
    Sketcher.Constraint("Equal", 40, 42),
    Sketcher.Constraint("Equal", 42, 44),
    Sketcher.Constraint("Equal", 44, 46),
    Sketcher.Constraint("Equal", 46, 49),
    Sketcher.Constraint("Equal", 49, 51),
    Sketcher.Constraint("Equal", 51, 53),
    Sketcher.Constraint("Equal", 53, 55),
    Sketcher.Constraint("Equal", 14, 57),
    Sketcher.Constraint("Equal", 57, 59),
    Sketcher.Constraint("Equal", 62, 64),
    Sketcher.Constraint("Equal", 61, 65),
    Sketcher.Constraint("Equal", 59, 67),
    Sketcher.Constraint("Equal", 67, 69),
    Sketcher.Constraint("Equal", 63, 71),
    Sketcher.Constraint("Symmetric", 32, 3, 40, 3, -1, 1),
    Sketcher.Constraint("Symmetric", 36, 3, 44, 3, -1, 1),
    Sketcher.Constraint("Symmetric", 25, 3, 49, 3, -1, 1),
    Sketcher.Constraint("Symmetric", 29, 3, 53, 3, -1, 1),
    Sketcher.Constraint("Symmetric", 57, 3, 67, 3, -1, 1),
    Sketcher.Constraint("Symmetric", 12, 3, 14, 3, -2),
    Sketcher.Constraint("Symmetric", 7, 3, 16, 3, -2),
    Sketcher.Constraint("Symmetric", 3, 3, 20, 3, -2),
    Sketcher.Constraint("Symmetric", 31, 3, 40, 3, -2),
    Sketcher.Constraint("Symmetric", 27, 3, 44, 3, -2),
    Sketcher.Constraint("Symmetric", 62, 3, 64, 3, -2),
    Sketcher.Constraint("Horizontal", 61, 3, 65, 3),
    Sketcher.Constraint("Horizontal", 57, 3, 69, 3),
    Sketcher.Constraint("Horizontal", 57, 2, 61, 1),
    Sketcher.Constraint("Equal", 54, 2),
    Sketcher.Constraint("Equal", 23, 24),
    Sketcher.Constraint("Equal", 9, 58),
    Sketcher.Constraint("Radius", 1, 1.0),
    Sketcher.Constraint("Radius", 8, 6.0),
    Sketcher.Constraint("Radius", 13, 16.0),
    Sketcher.Constraint("Radius", 61, 60.0),
    Sketcher.Constraint("Radius", 62, 18.0),
    Sketcher.Constraint("Radius", 63, 20.0),
    Sketcher.Constraint("DistanceX", 0, 2, 0, 1, 19.0),
    Sketcher.Constraint("DistanceX", 9, 1, 9, 2, 31.0),
    Sketcher.Constraint("DistanceX", 26, 2, 26, 1, 8.0),
    Sketcher.Constraint("DistanceY", -1, 1, 1, 3, 114.0),
    Sketcher.Constraint("DistanceY", -1, 1, 8, 3, 124.0),
    Sketcher.Constraint("DistanceX", 25, 3, -1, 1, 114.0),
    Sketcher.Constraint("DistanceX", 57, 3, -1, 1, 124.0),
    Sketcher.Constraint("DistanceX", 62, 3, -1, 1, 68.0),
    Sketcher.Constraint("DistanceX", 1, 3, -1, 1, 37.5),
    Sketcher.Constraint("DistanceY", 25, 3, -1, 1, 37.5),
    Sketcher.Constraint("DistanceY", 11, 2, 11, 1, 15.261898),
])
pocket4 = body.newObject("PartDesign::Pocket", "Pocket003")
pocket4.Profile = sketch5
pocket4.Type = "ThroughAll"
pocket4.Reversed = True

doc.recompute()
